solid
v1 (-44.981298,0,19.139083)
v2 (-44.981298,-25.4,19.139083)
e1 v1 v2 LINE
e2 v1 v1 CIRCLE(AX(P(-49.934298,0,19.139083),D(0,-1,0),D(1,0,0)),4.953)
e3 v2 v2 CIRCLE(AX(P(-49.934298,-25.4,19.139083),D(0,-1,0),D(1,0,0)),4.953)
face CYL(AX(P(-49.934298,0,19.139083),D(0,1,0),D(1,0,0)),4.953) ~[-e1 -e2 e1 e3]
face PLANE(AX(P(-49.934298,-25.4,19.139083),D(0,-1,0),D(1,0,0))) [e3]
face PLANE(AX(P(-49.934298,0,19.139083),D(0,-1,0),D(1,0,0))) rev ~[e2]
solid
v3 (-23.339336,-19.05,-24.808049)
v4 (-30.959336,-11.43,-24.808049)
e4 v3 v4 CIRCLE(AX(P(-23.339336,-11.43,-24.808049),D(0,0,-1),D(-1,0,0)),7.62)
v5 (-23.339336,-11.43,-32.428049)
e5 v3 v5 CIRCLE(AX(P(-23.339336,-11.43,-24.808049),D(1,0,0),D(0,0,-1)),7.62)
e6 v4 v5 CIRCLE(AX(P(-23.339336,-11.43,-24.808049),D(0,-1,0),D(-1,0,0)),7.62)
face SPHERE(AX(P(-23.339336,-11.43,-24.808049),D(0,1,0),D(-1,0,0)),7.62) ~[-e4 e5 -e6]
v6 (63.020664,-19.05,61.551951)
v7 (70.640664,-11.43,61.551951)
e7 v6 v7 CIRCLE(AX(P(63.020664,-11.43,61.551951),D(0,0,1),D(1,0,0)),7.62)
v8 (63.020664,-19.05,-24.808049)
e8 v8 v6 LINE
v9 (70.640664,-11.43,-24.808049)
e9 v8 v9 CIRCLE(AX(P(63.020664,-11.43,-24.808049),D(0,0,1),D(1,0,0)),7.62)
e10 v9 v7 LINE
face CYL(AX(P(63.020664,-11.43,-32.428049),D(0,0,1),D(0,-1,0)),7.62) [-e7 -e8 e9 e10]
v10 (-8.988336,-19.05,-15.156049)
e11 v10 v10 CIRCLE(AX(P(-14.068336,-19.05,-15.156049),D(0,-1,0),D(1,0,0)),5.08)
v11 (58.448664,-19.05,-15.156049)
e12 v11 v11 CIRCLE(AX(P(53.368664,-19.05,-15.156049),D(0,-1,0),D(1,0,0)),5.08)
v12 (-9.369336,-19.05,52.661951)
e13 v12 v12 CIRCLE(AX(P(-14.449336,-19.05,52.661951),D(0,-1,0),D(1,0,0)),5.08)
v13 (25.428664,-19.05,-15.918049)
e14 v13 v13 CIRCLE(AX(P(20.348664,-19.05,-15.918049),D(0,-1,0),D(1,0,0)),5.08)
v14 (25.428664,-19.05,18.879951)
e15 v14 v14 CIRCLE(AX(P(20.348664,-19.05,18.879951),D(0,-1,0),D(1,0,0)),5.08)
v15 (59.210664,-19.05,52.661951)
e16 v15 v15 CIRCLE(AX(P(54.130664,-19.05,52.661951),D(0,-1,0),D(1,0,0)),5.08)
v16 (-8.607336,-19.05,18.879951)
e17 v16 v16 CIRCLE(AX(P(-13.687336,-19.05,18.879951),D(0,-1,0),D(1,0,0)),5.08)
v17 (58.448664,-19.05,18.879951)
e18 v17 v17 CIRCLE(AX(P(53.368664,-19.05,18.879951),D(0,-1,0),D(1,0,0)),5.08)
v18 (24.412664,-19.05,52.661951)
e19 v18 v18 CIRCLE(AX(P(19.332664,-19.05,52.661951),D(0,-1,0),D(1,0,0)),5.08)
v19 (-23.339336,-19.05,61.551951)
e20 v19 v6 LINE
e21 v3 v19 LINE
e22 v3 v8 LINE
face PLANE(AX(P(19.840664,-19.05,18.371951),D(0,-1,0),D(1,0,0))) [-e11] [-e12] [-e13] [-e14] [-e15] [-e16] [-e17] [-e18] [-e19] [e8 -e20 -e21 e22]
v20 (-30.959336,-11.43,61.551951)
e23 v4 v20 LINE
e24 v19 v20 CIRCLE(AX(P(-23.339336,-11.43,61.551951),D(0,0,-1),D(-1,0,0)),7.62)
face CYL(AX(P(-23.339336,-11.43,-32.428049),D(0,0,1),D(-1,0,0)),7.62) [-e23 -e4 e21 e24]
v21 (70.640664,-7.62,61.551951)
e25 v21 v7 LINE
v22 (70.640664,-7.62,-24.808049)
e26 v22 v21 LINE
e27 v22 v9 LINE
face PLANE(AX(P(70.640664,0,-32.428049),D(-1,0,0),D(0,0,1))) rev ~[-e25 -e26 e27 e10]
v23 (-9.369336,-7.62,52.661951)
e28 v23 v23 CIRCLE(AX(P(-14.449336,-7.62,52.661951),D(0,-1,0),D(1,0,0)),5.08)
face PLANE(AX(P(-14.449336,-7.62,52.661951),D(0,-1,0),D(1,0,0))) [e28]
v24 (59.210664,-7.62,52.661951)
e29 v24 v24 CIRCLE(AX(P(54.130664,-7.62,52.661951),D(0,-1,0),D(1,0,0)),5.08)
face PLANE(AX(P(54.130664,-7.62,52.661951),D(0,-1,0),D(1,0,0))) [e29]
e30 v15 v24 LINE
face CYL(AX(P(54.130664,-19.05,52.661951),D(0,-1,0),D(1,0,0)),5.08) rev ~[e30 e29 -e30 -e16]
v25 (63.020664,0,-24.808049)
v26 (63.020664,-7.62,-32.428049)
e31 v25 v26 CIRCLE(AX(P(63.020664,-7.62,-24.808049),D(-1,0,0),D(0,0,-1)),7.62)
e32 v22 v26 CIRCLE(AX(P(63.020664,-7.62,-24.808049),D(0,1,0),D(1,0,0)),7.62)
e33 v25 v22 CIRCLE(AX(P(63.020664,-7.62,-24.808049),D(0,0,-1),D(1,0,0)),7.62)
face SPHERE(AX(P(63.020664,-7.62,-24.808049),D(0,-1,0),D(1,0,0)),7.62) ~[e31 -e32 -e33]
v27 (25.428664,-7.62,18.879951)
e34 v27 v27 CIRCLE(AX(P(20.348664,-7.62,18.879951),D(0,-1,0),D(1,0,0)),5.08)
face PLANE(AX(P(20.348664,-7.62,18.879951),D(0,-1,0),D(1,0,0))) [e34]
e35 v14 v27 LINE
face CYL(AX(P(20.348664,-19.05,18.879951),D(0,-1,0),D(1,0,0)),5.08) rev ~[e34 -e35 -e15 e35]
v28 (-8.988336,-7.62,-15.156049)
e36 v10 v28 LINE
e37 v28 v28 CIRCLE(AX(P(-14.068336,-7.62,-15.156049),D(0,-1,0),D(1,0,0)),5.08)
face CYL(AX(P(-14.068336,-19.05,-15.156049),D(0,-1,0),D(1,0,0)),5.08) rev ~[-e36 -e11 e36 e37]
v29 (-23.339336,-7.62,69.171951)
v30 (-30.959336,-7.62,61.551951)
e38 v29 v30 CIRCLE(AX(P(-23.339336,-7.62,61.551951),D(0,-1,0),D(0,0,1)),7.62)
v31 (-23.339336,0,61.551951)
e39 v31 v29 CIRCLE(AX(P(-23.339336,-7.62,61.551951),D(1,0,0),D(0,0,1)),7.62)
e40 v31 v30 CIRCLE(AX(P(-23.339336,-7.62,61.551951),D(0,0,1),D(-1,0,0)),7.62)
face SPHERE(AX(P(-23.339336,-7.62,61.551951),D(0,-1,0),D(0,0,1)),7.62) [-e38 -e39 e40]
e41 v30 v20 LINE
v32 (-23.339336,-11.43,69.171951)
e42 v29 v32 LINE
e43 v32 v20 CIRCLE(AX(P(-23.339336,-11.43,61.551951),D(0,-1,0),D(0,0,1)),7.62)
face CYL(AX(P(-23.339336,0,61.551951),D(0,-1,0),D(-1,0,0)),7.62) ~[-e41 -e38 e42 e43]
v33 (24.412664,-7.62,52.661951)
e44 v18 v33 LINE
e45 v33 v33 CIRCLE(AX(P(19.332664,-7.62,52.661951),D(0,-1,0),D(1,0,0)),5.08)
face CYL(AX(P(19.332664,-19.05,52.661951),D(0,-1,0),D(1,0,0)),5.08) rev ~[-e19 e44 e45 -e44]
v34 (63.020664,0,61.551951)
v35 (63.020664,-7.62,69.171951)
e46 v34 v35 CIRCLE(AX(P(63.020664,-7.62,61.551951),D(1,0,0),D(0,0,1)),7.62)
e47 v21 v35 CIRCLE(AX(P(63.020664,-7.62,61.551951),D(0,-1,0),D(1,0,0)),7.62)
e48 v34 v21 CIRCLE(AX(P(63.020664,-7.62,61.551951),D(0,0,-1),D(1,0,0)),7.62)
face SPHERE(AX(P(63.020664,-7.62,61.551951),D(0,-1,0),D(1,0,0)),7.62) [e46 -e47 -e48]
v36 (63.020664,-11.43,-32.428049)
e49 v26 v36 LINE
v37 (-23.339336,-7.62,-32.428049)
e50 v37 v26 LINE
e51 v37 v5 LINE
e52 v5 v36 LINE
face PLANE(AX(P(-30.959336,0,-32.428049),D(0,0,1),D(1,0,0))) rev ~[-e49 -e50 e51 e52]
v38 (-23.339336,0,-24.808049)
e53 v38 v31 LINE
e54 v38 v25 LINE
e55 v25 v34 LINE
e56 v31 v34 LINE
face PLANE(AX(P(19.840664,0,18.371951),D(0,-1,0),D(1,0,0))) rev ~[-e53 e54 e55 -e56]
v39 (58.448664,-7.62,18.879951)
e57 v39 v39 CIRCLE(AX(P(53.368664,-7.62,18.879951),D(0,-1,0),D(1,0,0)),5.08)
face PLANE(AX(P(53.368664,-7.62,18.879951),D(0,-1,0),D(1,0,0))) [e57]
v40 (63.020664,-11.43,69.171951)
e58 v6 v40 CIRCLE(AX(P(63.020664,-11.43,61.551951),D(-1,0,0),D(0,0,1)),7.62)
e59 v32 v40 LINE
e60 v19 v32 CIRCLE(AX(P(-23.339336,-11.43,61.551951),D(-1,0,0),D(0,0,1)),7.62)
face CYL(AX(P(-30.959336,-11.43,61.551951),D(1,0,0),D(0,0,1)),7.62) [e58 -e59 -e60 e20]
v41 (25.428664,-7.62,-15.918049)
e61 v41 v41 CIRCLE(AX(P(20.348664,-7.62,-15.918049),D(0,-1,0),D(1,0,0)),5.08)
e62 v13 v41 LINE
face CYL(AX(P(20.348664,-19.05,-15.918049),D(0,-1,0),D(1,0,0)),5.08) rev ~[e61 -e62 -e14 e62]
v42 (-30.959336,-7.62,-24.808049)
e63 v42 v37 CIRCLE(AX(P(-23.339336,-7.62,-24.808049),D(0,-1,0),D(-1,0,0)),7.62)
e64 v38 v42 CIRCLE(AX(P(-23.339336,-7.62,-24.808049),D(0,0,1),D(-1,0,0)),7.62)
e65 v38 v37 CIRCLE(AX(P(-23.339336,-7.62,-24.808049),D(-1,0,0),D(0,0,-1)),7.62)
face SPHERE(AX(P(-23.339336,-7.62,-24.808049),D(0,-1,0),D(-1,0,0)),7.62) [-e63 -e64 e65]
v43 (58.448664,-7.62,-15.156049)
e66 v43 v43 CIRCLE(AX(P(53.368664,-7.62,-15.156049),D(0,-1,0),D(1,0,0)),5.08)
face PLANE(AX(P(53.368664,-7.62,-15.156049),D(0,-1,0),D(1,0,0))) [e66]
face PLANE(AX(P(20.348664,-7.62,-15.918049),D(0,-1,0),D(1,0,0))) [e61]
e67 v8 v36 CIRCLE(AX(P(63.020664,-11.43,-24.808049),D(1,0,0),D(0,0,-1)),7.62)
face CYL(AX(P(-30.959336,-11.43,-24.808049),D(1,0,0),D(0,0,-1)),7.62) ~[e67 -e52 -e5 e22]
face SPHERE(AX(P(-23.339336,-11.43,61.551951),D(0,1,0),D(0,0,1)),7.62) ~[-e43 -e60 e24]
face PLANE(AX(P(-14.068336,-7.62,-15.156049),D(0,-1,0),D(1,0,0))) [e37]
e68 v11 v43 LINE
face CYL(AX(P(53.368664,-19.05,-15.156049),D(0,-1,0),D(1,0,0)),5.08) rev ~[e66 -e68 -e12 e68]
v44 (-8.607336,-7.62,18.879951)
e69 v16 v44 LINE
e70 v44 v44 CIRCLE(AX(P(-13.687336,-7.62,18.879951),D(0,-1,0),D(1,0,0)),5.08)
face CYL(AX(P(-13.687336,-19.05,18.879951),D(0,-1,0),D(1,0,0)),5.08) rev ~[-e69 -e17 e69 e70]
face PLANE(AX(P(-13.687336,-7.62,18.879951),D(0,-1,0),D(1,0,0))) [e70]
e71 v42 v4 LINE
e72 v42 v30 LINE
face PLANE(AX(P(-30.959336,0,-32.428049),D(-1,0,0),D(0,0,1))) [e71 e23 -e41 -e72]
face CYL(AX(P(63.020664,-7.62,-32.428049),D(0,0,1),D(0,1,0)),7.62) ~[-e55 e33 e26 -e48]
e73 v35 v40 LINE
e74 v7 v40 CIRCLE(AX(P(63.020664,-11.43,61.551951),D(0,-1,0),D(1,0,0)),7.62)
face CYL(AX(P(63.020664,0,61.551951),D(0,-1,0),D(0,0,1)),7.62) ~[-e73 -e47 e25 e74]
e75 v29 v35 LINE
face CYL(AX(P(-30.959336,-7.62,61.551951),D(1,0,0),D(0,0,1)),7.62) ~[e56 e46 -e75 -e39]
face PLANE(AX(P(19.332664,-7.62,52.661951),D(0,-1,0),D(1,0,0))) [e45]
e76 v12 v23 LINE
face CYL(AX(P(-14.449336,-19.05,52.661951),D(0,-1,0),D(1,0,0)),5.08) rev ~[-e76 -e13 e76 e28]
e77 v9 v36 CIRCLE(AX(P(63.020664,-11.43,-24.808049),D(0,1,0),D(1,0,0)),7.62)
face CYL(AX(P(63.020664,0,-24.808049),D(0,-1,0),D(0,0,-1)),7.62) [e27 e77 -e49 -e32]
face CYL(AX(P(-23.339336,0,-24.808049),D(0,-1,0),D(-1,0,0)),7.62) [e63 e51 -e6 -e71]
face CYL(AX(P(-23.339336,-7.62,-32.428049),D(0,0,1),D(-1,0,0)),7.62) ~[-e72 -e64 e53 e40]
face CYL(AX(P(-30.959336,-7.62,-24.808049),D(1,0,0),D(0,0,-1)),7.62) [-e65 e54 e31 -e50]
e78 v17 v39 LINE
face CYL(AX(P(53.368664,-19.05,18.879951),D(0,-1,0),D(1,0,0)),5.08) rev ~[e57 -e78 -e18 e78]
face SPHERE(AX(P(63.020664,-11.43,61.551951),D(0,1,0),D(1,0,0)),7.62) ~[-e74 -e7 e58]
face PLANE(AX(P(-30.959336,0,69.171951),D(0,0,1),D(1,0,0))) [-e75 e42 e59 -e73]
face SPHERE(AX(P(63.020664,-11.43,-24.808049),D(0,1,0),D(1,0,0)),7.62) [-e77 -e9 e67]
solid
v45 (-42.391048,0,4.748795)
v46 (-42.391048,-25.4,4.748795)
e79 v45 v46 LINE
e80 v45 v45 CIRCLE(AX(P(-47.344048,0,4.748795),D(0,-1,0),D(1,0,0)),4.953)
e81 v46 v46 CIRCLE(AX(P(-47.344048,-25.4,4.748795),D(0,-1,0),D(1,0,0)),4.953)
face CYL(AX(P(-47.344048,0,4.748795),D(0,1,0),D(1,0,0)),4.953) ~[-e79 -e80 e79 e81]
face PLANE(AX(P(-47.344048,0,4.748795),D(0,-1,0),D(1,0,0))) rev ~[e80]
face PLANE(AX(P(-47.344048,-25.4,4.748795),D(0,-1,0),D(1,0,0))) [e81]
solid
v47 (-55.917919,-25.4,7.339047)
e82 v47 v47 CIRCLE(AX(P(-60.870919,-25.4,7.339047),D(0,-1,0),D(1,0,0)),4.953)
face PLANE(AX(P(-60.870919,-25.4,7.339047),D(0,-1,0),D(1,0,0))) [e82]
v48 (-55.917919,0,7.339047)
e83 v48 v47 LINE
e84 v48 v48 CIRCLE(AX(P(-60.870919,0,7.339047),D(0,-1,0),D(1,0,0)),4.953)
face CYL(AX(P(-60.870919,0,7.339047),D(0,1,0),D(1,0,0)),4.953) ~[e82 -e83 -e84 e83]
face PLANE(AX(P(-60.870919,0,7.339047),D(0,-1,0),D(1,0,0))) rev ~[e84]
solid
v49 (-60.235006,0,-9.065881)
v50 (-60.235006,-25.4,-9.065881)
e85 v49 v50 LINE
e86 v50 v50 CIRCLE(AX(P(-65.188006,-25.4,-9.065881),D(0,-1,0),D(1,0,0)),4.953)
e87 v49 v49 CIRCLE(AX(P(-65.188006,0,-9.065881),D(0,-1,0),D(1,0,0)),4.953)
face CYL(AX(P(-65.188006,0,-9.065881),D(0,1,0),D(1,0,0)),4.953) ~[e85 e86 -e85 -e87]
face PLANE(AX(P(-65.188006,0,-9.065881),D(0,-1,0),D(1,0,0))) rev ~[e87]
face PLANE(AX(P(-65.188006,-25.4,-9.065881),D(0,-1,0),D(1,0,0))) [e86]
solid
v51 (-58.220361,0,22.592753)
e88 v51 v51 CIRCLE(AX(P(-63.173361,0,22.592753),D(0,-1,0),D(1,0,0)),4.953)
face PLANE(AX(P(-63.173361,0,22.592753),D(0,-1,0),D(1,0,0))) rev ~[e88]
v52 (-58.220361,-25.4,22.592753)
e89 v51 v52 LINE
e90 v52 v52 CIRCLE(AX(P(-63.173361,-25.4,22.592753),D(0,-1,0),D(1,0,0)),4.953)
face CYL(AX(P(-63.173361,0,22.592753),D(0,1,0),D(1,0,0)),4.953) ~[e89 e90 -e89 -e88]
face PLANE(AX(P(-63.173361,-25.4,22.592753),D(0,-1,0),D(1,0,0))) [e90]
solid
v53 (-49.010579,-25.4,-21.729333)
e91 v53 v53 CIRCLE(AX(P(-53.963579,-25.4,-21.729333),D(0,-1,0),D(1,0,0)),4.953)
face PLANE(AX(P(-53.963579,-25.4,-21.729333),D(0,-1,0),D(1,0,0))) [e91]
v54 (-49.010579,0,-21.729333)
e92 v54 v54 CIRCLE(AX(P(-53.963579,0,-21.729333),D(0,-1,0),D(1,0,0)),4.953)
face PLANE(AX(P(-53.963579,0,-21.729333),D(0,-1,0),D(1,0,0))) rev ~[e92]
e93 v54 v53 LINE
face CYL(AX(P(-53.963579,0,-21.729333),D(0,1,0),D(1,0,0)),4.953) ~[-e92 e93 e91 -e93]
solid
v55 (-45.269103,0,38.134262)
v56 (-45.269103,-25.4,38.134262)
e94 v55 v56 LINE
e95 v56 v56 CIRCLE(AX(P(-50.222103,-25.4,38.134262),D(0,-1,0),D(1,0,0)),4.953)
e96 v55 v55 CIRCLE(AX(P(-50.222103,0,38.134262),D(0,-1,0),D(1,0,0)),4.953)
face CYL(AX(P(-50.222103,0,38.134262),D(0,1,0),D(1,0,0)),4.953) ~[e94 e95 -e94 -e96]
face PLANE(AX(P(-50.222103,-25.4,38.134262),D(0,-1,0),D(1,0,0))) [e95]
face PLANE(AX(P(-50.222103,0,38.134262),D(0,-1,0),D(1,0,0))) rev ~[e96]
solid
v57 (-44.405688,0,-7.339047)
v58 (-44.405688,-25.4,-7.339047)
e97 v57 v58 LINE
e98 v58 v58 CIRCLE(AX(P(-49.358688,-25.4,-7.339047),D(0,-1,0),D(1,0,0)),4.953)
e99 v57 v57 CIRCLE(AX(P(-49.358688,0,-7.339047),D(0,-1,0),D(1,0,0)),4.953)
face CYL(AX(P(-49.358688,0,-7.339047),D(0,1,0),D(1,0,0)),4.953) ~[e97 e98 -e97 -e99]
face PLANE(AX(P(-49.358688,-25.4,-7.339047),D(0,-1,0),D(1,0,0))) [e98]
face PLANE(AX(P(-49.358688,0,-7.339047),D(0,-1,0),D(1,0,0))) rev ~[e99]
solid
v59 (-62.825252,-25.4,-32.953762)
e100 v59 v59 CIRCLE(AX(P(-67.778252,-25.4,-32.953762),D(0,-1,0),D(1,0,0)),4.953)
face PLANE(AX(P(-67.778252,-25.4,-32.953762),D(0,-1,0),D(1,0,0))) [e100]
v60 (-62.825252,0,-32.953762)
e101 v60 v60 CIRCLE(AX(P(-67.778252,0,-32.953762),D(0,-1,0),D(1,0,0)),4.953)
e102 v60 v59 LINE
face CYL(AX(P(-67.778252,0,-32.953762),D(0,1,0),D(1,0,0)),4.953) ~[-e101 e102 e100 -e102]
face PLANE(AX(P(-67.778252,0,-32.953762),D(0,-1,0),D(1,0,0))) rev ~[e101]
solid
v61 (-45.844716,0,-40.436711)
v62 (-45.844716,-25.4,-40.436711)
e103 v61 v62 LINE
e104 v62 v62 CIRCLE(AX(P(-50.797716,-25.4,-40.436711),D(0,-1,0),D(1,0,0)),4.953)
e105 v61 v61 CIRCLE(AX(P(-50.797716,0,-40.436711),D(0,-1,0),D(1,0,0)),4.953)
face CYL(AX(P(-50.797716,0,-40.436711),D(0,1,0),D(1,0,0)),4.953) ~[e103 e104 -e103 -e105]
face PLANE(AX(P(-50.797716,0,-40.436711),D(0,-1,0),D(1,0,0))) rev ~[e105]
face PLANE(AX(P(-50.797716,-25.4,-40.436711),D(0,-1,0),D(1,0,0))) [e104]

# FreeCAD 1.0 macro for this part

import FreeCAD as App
import Part
import Sketcher
from FreeCAD import Vector
Q = App.Units.Quantity


def edges_at(feature, points):
    """Names of the edges that pass closest to the given points."""
    edges = feature.Shape.Edges
    near = lambda p: min(range(len(edges)), key=lambda i: edges[i].distToShape(Part.Vertex(*p))[0])
    return sorted({f"Edge{near(p) + 1}" for p in points})

doc = App.newDocument("Part")
body = doc.addObject("PartDesign::Body", "Body")

sketch1 = body.newObject("Sketcher::SketchObject", "Sketch")
sketch1.AttachmentSupport = (doc.getObject("XZ_Plane"), [""])
sketch1.MapMode = "FlatFace"
sketch1.addGeometry(Part.LineSegment(Vector(-31, 69, 0), Vector(-31, -32, 0)), False)
sketch1.addGeometry(Part.LineSegment(Vector(-31, -32, 0), Vector(71, -32, 0)), False)
sketch1.addGeometry(Part.LineSegment(Vector(71, -32, 0), Vector(71, 69, 0)), False)
sketch1.addGeometry(Part.LineSegment(Vector(71, 69, 0), Vector(-31, 69, 0)), False)
sketch1.addConstraint(Sketcher.Constraint("Coincident", 0, 2, 1, 1))
sketch1.addConstraint(Sketcher.Constraint("Coincident", 1, 2, 2, 1))
sketch1.addConstraint(Sketcher.Constraint("Coincident", 2, 2, 3, 1))
sketch1.addConstraint(Sketcher.Constraint("Coincident", 3, 2, 0, 1))
sketch1.addConstraint(Sketcher.Constraint("Vertical", 0))
sketch1.addConstraint(Sketcher.Constraint("Horizontal", 1))
sketch1.addConstraint(Sketcher.Constraint("Vertical", 2))
sketch1.addConstraint(Sketcher.Constraint("Horizontal", 3))
sketch1.addConstraint(Sketcher.Constraint("Equal", 3, 0))
sketch1.addConstraint(Sketcher.Constraint("DistanceX", 1, 1, 1, 2, Q("4 in")))
sketch1.addConstraint(Sketcher.Constraint("DistanceY", 0, 2, -1, 1, 32.428049))
sketch1.addConstraint(Sketcher.Constraint("DistanceX", 0, 2, -1, 1, 30.959336))
pad1 = body.newObject("PartDesign::Pad", "Pad")
pad1.Profile = sketch1
pad1.Length = Q("0.75 in")

sketch2 = body.newObject("Sketcher::SketchObject", "Sketch001")
sketch2.AttachmentSupport = (doc.getObject("XZ_Plane"), [""])
sketch2.MapMode = "FlatFace"
sketch2.AttachmentOffset = App.Placement(Vector(0, 0, 0.75 * 25.4), App.Rotation())
sketch2.addGeometry(Part.Circle(Vector(-14, 53, 0), Vector(0, 0, 1), 5), False)
sketch2.addGeometry(Part.Circle(Vector(19, 53, 0), Vector(0, 0, 1), 5), False)
sketch2.addGeometry(Part.Circle(Vector(54, 53, 0), Vector(0, 0, 1), 5), False)
sketch2.addGeometry(Part.Circle(Vector(53, 19, 0), Vector(0, 0, 1), 5), False)
sketch2.addGeometry(Part.Circle(Vector(20, 19, 0), Vector(0, 0, 1), 5), False)
sketch2.addGeometry(Part.Circle(Vector(-14, 19, 0), Vector(0, 0, 1), 5), False)
sketch2.addGeometry(Part.Circle(Vector(-14, -15, 0), Vector(0, 0, 1), 5), False)
sketch2.addGeometry(Part.Circle(Vector(20, -16, 0), Vector(0, 0, 1), 5), False)
sketch2.addGeometry(Part.Circle(Vector(53, -15, 0), Vector(0, 0, 1), 5), False)
sketch2.addConstraint(Sketcher.Constraint("Equal", 0, 1))
sketch2.addConstraint(Sketcher.Constraint("Equal", 1, 2))
sketch2.addConstraint(Sketcher.Constraint("Equal", 2, 3))
sketch2.addConstraint(Sketcher.Constraint("Equal", 3, 4))
sketch2.addConstraint(Sketcher.Constraint("Equal", 4, 5))
sketch2.addConstraint(Sketcher.Constraint("Equal", 5, 6))
sketch2.addConstraint(Sketcher.Constraint("Equal", 6, 7))
sketch2.addConstraint(Sketcher.Constraint("Equal", 7, 8))
sketch2.addConstraint(Sketcher.Constraint("Horizontal", 0, 3, 1, 3))
sketch2.addConstraint(Sketcher.Constraint("Horizontal", 1, 3, 2, 3))
sketch2.addConstraint(Sketcher.Constraint("Horizontal", 3, 3, 4, 3))
sketch2.addConstraint(Sketcher.Constraint("Horizontal", 4, 3, 5, 3))
sketch2.addConstraint(Sketcher.Constraint("Horizontal", 6, 3, 8, 3))
sketch2.addConstraint(Sketcher.Constraint("Vertical", 4, 3, 7, 3))
sketch2.addConstraint(Sketcher.Constraint("Vertical", 3, 3, 8, 3))
sketch2.addConstraint(Sketcher.Constraint("Diameter", 0, Q("0.4 in")))
sketch2.addConstraint(Sketcher.Constraint("DistanceX", 0, 3, 2, 3, Q("2.7 in")))
sketch2.addConstraint(Sketcher.Constraint("DistanceX", 4, 3, 3, 3, Q("1.3 in")))
sketch2.addConstraint(Sketcher.Constraint("DistanceX", 5, 3, 1, 3, Q("1.3 in")))
sketch2.addConstraint(Sketcher.Constraint("DistanceY", 7, 3, 1, 3, Q("2.7 in")))
sketch2.addConstraint(Sketcher.Constraint("DistanceX", 0, 3, 1, 3, Q("1.33 in")))
sketch2.addConstraint(Sketcher.Constraint("DistanceX", 3, 3, 2, 3, Q("0.03 in")))
sketch2.addConstraint(Sketcher.Constraint("DistanceY", 3, 3, 2, 3, Q("1.33 in")))
sketch2.addConstraint(Sketcher.Constraint("DistanceY", 6, 3, 5, 3, Q("1.34 in")))
sketch2.addConstraint(Sketcher.Constraint("DistanceX", 6, 3, 5, 3, Q("0.015 in")))
sketch2.addConstraint(Sketcher.Constraint("DistanceY", -1, 1, 0, 3, 52.661951))
sketch2.addConstraint(Sketcher.Constraint("DistanceX", 0, 3, -1, 1, 14.449336))
pocket1 = body.newObject("PartDesign::Pocket", "Pocket")
pocket1.Profile = sketch2
pocket1.Length = Q("0.45 in")
doc.recompute()

fillet = body.newObject("PartDesign::Fillet", "Fillet")
fillet.Base = (pocket1, edges_at(pocket1, [
    (70.641, -9.525, -32.428),
    (70.641, -9.525, 69.172),
    (70.641, 0, 18.372),
    (70.641, -19.05, 18.372),
    (-30.959, -9.525, 69.172),
    (19.841, 0, 69.172),
    (19.841, -19.05, 69.172),
    (-30.959, -9.525, -32.428),
    (-30.959, 0, 18.372),
    (-30.959, -19.05, 18.372),
    (19.841, 0, -32.428),
    (19.841, -19.05, -32.428),
]))
fillet.Radius = Q("0.3 in")
body2 = doc.addObject("PartDesign::Body", "Body001")
body2.AllowCompound = True

sketch3 = body2.newObject("Sketcher::SketchObject", "Sketch002")
sketch3.AttachmentSupport = (doc.getObject("XZ_Plane001"), [""])
sketch3.MapMode = "FlatFace"
sketch3.addGeometry(Part.Circle(Vector(-50.2, 38.1, 0), Vector(0, 0, 1), 5), False)
sketch3.addGeometry(Part.Circle(Vector(-63.2, 22.6, 0), Vector(0, 0, 1), 5), False)
sketch3.addGeometry(Part.Circle(Vector(-60.9, 7.3, 0), Vector(0, 0, 1), 5), False)
sketch3.addGeometry(Part.Circle(Vector(-49.9, 19.1, 0), Vector(0, 0, 1), 5), False)
sketch3.addGeometry(Part.Circle(Vector(-47.3, 4.7, 0), Vector(0, 0, 1), 5), False)
sketch3.addGeometry(Part.Circle(Vector(-65.2, -9.1, 0), Vector(0, 0, 1), 5), False)
sketch3.addGeometry(Part.Circle(Vector(-49.4, -7.3, 0), Vector(0, 0, 1), 5), False)
sketch3.addGeometry(Part.Circle(Vector(-54, -21.7, 0), Vector(0, 0, 1), 5), False)
sketch3.addGeometry(Part.Circle(Vector(-50.8, -40.4, 0), Vector(0, 0, 1), 5), False)
sketch3.addGeometry(Part.Circle(Vector(-67.8, -33, 0), Vector(0, 0, 1), 5), False)
sketch3.addConstraint(Sketcher.Constraint("Equal", 0, 1))
sketch3.addConstraint(Sketcher.Constraint("Equal", 1, 2))
sketch3.addConstraint(Sketcher.Constraint("Equal", 2, 3))
sketch3.addConstraint(Sketcher.Constraint("Equal", 3, 4))
sketch3.addConstraint(Sketcher.Constraint("Equal", 4, 5))
sketch3.addConstraint(Sketcher.Constraint("Equal", 5, 6))
sketch3.addConstraint(Sketcher.Constraint("Equal", 6, 7))
sketch3.addConstraint(Sketcher.Constraint("Equal", 7, 8))
sketch3.addConstraint(Sketcher.Constraint("Equal", 8, 9))
sketch3.addConstraint(Sketcher.Constraint("Diameter", 0, Q("0.39 in")))
sketch3.addConstraint(Sketcher.Constraint("DistanceY", 6, 3, 1, 3, 29.9318))
sketch3.addConstraint(Sketcher.Constraint("DistanceX", 1, 3, -1, 1, 63.173361))
sketch3.addConstraint(Sketcher.Constraint("DistanceX", 2, 3, -1, 1, 60.870919))
sketch3.addConstraint(Sketcher.Constraint("DistanceY", 5, 3, -1, 1, 9.065881))
sketch3.addConstraint(Sketcher.Constraint("DistanceX", 7, 3, -1, 1, 53.963579))
sketch3.addConstraint(Sketcher.Constraint("DistanceY", 8, 3, -1, 1, 40.436711))
sketch3.addConstraint(Sketcher.Constraint("DistanceX", 9, 3, -1, 1, 67.778252))
sketch3.addConstraint(Sketcher.Constraint("DistanceY", 9, 3, -1, 1, 32.953762))
sketch3.addConstraint(Sketcher.Constraint("DistanceX", 1, 3, 0, 3, 12.951258))
sketch3.addConstraint(Sketcher.Constraint("DistanceY", 1, 3, 0, 3, 15.541509))
sketch3.addConstraint(Sketcher.Constraint("DistanceY", 3, 3, 1, 3, 3.45367))
sketch3.addConstraint(Sketcher.Constraint("DistanceX", 2, 3, 3, 3, 10.936621))
sketch3.addConstraint(Sketcher.Constraint("DistanceX", 2, 3, 4, 3, 13.526871))
sketch3.addConstraint(Sketcher.Constraint("DistanceY", 4, 3, 2, 3, 2.590252))
sketch3.addConstraint(Sketcher.Constraint("DistanceX", 5, 3, 4, 3, 17.843958))
sketch3.addConstraint(Sketcher.Constraint("DistanceX", 6, 3, 4, 3, 2.01464))
sketch3.addConstraint(Sketcher.Constraint("DistanceY", 7, 3, 4, 3, 26.478128))
sketch3.addConstraint(Sketcher.Constraint("DistanceY", 8, 3, 7, 3, 18.707378))
sketch3.addConstraint(Sketcher.Constraint("DistanceX", 8, 3, 6, 3, 1.439028))
sketch3.addConstraint(Sketcher.Constraint("DistanceY", -1, 1, 0, 3, 38.134262))
pad2 = body2.newObject("PartDesign::Pad", "Pad001")
pad2.Profile = sketch3
pad2.Length = Q("1 in")

doc.recompute()
